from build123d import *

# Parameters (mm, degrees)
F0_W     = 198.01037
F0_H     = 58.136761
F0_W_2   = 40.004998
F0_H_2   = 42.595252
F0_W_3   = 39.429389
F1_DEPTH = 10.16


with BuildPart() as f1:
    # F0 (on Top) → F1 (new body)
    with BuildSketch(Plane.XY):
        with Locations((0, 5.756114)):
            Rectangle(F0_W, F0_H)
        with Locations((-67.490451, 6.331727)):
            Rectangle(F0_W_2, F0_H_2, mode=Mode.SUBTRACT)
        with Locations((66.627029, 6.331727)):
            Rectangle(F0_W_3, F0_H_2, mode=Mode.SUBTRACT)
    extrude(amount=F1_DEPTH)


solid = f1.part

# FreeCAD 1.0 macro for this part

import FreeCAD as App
import Part
import Sketcher
Q = App.Units.Quantity

doc = App.newDocument("Part")
params = doc.addObject("Spreadsheet::Sheet", "Params")
for row, (alias, value) in enumerate([
    ("sketch1_width", "1.5749999 in"),
    ("pad1_length", "0.4 in"),
], start=1):
    params.set(f"A{row}", alias)
    params.set(f"B{row}", "=" + value)
    params.setAlias(f"B{row}", alias)

body = doc.addObject("PartDesign::Body", "Body")

# Sketch on XY plane
sketch1 = body.newObject("Sketcher::SketchObject", "Sketch")
sketch1.AttachmentSupport = (doc.getObject("XY_Plane"), [""])
sketch1.MapMode = "FlatFace"
sketch1.addGeometry(Part.LineSegment(App.Vector(-99.005185, 34.824495, 0), App.Vector(-99.005185, -23.312266, 0)), False)
sketch1.addGeometry(Part.LineSegment(App.Vector(-99.005185, -23.312266, 0), App.Vector(99.005185, -23.312266, 0)), False)
sketch1.addGeometry(Part.LineSegment(App.Vector(99.005185, -23.312266, 0), App.Vector(99.005185, 34.824495, 0)), False)
sketch1.addGeometry(Part.LineSegment(App.Vector(99.005185, 34.824495, 0), App.Vector(-99.005185, 34.824495, 0)), False)
sketch1.addGeometry(Part.LineSegment(App.Vector(-47.487952, -14.965899, 0), App.Vector(-87.49295, -14.965899, 0)), False)
sketch1.addGeometry(Part.LineSegment(App.Vector(-87.49295, -14.965899, 0), App.Vector(-87.49295, 27.629353, 0)), False)
sketch1.addGeometry(Part.LineSegment(App.Vector(-87.49295, 27.629353, 0), App.Vector(-47.487952, 27.629353, 0)), False)
sketch1.addGeometry(Part.LineSegment(App.Vector(-47.487952, 27.629353, 0), App.Vector(-47.487952, -14.965899, 0)), False)
sketch1.addGeometry(Part.LineSegment(App.Vector(86.341724, -14.965899, 0), App.Vector(46.912335, -14.965899, 0)), False)
sketch1.addGeometry(Part.LineSegment(App.Vector(46.912335, -14.965899, 0), App.Vector(46.912335, 27.629353, 0)), False)
sketch1.addGeometry(Part.LineSegment(App.Vector(46.912335, 27.629353, 0), App.Vector(86.341724, 27.629353, 0)), False)
sketch1.addGeometry(Part.LineSegment(App.Vector(86.341724, 27.629353, 0), App.Vector(86.341724, -14.965899, 0)), False)
sketch1.addConstraint(Sketcher.Constraint("Coincident", 0, 2, 1, 1))
sketch1.addConstraint(Sketcher.Constraint("Coincident", 1, 2, 2, 1))
sketch1.addConstraint(Sketcher.Constraint("Coincident", 2, 2, 3, 1))
sketch1.addConstraint(Sketcher.Constraint("Coincident", 3, 2, 0, 1))
sketch1.addConstraint(Sketcher.Constraint("Coincident", 4, 2, 5, 1))
sketch1.addConstraint(Sketcher.Constraint("Coincident", 5, 2, 6, 1))
sketch1.addConstraint(Sketcher.Constraint("Coincident", 6, 2, 7, 1))
sketch1.addConstraint(Sketcher.Constraint("Coincident", 7, 2, 4, 1))
sketch1.addConstraint(Sketcher.Constraint("Coincident", 8, 2, 9, 1))
sketch1.addConstraint(Sketcher.Constraint("Coincident", 9, 2, 10, 1))
sketch1.addConstraint(Sketcher.Constraint("Coincident", 10, 2, 11, 1))
sketch1.addConstraint(Sketcher.Constraint("Coincident", 11, 2, 8, 1))
sketch1.addConstraint(Sketcher.Constraint("Vertical", 0))
sketch1.addConstraint(Sketcher.Constraint("Horizontal", 1))
sketch1.addConstraint(Sketcher.Constraint("Vertical", 2))
sketch1.addConstraint(Sketcher.Constraint("Horizontal", 3))
sketch1.addConstraint(Sketcher.Constraint("Horizontal", 4))
sketch1.addConstraint(Sketcher.Constraint("Vertical", 5))
sketch1.addConstraint(Sketcher.Constraint("Horizontal", 6))
sketch1.addConstraint(Sketcher.Constraint("Vertical", 7))
sketch1.addConstraint(Sketcher.Constraint("Horizontal", 8))
sketch1.addConstraint(Sketcher.Constraint("Vertical", 9))
sketch1.addConstraint(Sketcher.Constraint("Horizontal", 10))
sketch1.addConstraint(Sketcher.Constraint("Vertical", 11))
sketch1.addConstraint(Sketcher.Constraint("Horizontal", 7, 2, 8, 2))
sketch1.addConstraint(Sketcher.Constraint("Horizontal", 6, 2, 9, 2))
sketch1.addConstraint(Sketcher.Constraint("DistanceX", 4, 2, 4, 1, Q("1.5749999 in")))
sketch1.addConstraint(Sketcher.Constraint("DistanceX", 1, 1, 1, 2, Q("198.01037 mm")))
sketch1.addConstraint(Sketcher.Constraint("DistanceX", 8, 2, 8, 1, Q("39.429389 mm")))
sketch1.addConstraint(Sketcher.Constraint("DistanceY", 0, 2, 0, 1, Q("58.136761 mm")))
sketch1.addConstraint(Sketcher.Constraint("DistanceY", 4, 2, -1, 1, Q("14.965899 mm")))
sketch1.addConstraint(Sketcher.Constraint("DistanceY", 5, 1, 5, 2, Q("42.595252 mm")))
sketch1.addConstraint(Sketcher.Constraint("DistanceX", 4, 2, -1, 1, Q("87.49295 mm")))
sketch1.addConstraint(Sketcher.Constraint("DistanceY", 5, 2, 3, 2, Q("7.195142 mm")))
sketch1.addConstraint(Sketcher.Constraint("DistanceX", 8, 2, 1, 2, Q("52.09285 mm")))
sketch1.addConstraint(Sketcher.Constraint("DistanceX", 0, 2, -1, 1, Q("99.005185 mm")))
sketch1.setExpression("Constraints[26]", "Params.sketch1_width")
pad1 = body.newObject("PartDesign::Pad", "Pad")
pad1.Profile = sketch1
pad1.setExpression("Length", "Params.pad1_length")

doc.recompute()
